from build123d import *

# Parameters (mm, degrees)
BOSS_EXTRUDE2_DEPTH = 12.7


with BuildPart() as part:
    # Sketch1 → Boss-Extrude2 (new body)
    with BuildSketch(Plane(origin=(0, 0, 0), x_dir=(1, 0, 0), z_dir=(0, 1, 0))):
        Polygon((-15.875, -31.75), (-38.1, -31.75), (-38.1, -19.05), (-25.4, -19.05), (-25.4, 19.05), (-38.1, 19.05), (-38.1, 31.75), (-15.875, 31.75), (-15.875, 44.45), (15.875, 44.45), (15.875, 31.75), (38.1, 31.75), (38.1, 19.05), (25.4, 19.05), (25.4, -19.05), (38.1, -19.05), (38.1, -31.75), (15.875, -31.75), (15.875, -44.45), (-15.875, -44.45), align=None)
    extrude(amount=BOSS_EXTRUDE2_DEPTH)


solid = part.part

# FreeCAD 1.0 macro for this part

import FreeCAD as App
import Part
import Sketcher

V = App.Vector
Q = App.Units.Quantity


def add_polygon(sketch, points):
    """Adds a closed chain of lines whose ends are joined by coincident constraints."""
    first, n = sketch.GeometryCount, len(points)
    for a, b in zip(points, points[1:] + points[:1]):
        sketch.addGeometry(Part.LineSegment(App.Vector(*a, 0), App.Vector(*b, 0)), False)
    for i in range(n):
        sketch.addConstraint(Sketcher.Constraint("Coincident", first + i, 2, first + (i + 1) % n, 1))

doc = App.newDocument("Part")
params = doc.addObject("Spreadsheet::Sheet", "Params")
for row, (alias, value) in enumerate([
    ("sketch1_width", "0.5 in"),
    ("sketch1_height", "1.5 in"),
    ("sketch1_width2", "1.25 in"),
    ("pad1_length", "0.5 in"),
], start=1):
    params.set(f"A{row}", alias)
    params.set(f"B{row}", "=" + value)
    params.setAlias(f"B{row}", alias)

body = doc.addObject("PartDesign::Body", "Body")

# Sketch on XZ plane
sketch1 = doc.addObject("Sketcher::SketchObject", "Sketch")
body.addObject(sketch1)
sketch1.AttachmentSupport = (doc.XZ_Plane, [""])
sketch1.MapMode = "FlatFace"
add_polygon(sketch1, [(-38.1, 31.75), (-15.875, 31.75), (-15.875, 44.45), (15.875, 44.45), (15.875, 31.75), (38.1, 31.75), (38.1, 19.05), (25.4, 19.05), (25.4, -19.05), (38.1, -19.05), (38.1, -31.75), (15.875, -31.75), (15.875, -44.45), (-15.875, -44.45), (-15.875, -31.75), (-38.1, -31.75), (-38.1, -19.05), (-25.4, -19.05), (-25.4, 19.05), (-38.1, 19.05)])  # lines 0-19
sketch1.addConstraint([
    Sketcher.Constraint("Horizontal", 0),
    Sketcher.Constraint("Vertical", 1),
    Sketcher.Constraint("Horizontal", 2),
    Sketcher.Constraint("Vertical", 3),
    Sketcher.Constraint("Horizontal", 4),
    Sketcher.Constraint("Vertical", 5),
    Sketcher.Constraint("Horizontal", 6),
    Sketcher.Constraint("Vertical", 7),
    Sketcher.Constraint("Horizontal", 8),
    Sketcher.Constraint("Vertical", 9),
    Sketcher.Constraint("Horizontal", 10),
    Sketcher.Constraint("Vertical", 11),
    Sketcher.Constraint("Horizontal", 12),
    Sketcher.Constraint("Vertical", 13),
    Sketcher.Constraint("Horizontal", 14),
    Sketcher.Constraint("Vertical", 15),
    Sketcher.Constraint("Horizontal", 16),
    Sketcher.Constraint("Vertical", 17),
    Sketcher.Constraint("Horizontal", 18),
    Sketcher.Constraint("Vertical", 19),
    Sketcher.Constraint("Symmetric", 0, 2, 10, 2, -1, 1),
    Sketcher.Constraint("Symmetric", 2, 2, 12, 2, -1, 1),
    Sketcher.Constraint("Symmetric", 4, 2, 14, 2, -1, 1),
    Sketcher.Constraint("Symmetric", 6, 2, 16, 2, -1, 1),
    Sketcher.Constraint("Symmetric", 8, 2, 18, 2, -1, 1),
    Sketcher.Constraint("Symmetric", 0, 2, 3, 2, -2),
    Sketcher.Constraint("Symmetric", 8, 2, 15, 2, -2),
    Sketcher.Constraint("Equal", 18, 1),
    Sketcher.Constraint("Equal", 3, 5),
    Sketcher.Constraint("DistanceX", 6, 2, 6, 1, Q("0.5 in")),
    Sketcher.Constraint("DistanceY", 7, 2, 7, 1, Q("1.5 in")),
    Sketcher.Constraint("DistanceX", -1, 1, 6, 2, Q("1 in")),
    Sketcher.Constraint("DistanceX", 2, 1, 2, 2, Q("1.25 in")),
])
sketch1.setExpression("Constraints[49]", "Params.sketch1_width")
sketch1.setExpression("Constraints[50]", "Params.sketch1_height")
sketch1.setExpression("Constraints[52]", "Params.sketch1_width2")
pad1 = doc.addObject("PartDesign::Pad", "Pad")
body.addObject(pad1)
pad1.Profile = sketch1
pad1.setExpression("Length", "Params.pad1_length")
pad1.Reversed = True

doc.recompute()
